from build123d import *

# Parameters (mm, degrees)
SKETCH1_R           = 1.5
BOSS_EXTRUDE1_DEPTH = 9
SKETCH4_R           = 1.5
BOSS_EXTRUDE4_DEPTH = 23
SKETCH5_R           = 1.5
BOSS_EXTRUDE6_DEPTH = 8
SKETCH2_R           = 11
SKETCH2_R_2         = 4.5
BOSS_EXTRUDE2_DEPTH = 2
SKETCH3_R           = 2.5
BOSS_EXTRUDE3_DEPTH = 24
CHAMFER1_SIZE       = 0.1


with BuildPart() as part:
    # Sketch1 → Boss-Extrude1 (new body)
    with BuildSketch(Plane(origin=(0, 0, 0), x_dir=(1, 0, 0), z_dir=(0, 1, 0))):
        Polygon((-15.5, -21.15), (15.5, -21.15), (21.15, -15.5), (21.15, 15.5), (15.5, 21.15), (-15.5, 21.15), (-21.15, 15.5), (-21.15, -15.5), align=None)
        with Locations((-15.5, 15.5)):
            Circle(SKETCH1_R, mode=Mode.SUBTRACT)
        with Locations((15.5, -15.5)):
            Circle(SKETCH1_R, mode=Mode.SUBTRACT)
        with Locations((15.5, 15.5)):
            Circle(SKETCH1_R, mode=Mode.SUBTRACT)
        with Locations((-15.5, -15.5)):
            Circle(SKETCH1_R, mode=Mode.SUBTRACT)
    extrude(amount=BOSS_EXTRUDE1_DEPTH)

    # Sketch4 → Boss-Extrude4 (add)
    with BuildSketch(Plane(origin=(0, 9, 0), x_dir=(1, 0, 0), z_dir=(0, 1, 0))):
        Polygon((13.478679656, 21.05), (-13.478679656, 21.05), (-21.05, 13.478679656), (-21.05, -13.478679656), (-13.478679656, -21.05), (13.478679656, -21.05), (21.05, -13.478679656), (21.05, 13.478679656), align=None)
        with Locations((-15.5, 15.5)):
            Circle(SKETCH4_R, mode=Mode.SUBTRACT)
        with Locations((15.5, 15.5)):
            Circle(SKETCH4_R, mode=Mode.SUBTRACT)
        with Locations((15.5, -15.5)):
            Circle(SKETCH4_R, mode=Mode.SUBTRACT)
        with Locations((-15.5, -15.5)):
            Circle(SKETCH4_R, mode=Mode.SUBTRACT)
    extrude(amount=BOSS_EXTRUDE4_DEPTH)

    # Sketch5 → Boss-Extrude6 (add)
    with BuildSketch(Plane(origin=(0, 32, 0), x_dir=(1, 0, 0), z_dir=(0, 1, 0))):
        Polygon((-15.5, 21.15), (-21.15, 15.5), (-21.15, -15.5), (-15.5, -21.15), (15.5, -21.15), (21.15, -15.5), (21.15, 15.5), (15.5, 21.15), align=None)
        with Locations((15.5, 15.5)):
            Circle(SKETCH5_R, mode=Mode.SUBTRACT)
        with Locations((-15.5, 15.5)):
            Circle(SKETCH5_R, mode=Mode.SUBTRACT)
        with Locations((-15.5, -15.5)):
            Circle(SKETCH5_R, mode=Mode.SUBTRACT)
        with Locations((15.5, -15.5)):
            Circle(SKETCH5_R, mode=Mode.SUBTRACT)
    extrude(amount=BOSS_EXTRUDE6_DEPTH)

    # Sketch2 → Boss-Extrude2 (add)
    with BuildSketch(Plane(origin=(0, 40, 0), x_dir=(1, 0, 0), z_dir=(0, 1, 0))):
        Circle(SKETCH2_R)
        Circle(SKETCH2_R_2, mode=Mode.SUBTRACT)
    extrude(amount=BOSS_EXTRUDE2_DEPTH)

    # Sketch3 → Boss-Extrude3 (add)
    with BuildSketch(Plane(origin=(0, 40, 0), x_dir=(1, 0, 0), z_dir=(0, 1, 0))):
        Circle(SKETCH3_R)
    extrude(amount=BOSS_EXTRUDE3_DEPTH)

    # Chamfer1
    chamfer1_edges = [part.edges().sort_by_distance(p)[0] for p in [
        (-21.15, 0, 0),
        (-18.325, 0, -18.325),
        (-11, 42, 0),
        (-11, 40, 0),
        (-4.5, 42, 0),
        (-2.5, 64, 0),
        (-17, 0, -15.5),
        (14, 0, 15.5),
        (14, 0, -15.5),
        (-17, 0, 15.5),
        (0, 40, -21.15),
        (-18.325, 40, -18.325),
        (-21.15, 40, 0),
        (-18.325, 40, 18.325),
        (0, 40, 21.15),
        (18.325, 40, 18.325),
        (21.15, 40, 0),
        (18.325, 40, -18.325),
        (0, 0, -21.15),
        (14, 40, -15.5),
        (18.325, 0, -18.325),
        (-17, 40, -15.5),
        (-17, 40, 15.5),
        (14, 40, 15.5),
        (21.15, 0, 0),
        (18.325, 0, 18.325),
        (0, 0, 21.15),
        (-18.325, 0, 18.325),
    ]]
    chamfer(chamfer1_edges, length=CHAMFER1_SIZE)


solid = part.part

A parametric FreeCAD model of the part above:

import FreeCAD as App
import Part
import Sketcher

V = App.Vector


def edges_at(feature, points):
    """Names of the edges that pass closest to the given points."""
    edges = feature.Shape.Edges
    near = lambda p: min(range(len(edges)), key=lambda i: edges[i].distToShape(Part.Vertex(*p))[0])
    return sorted({f"Edge{near(p) + 1}" for p in points})


def add_polygon(sketch, points):
    """Adds a closed chain of lines whose ends are joined by coincident constraints."""
    first, n = sketch.GeometryCount, len(points)
    for a, b in zip(points, points[1:] + points[:1]):
        sketch.addGeometry(Part.LineSegment(App.Vector(*a, 0), App.Vector(*b, 0)), False)
    for i in range(n):
        sketch.addConstraint(Sketcher.Constraint("Coincident", first + i, 2, first + (i + 1) % n, 1))

doc = App.newDocument("Part")
body = doc.addObject("PartDesign::Body", "Body")

sketch1 = body.newObject("Sketcher::SketchObject", "Sketch")
sketch1.AttachmentSupport = (doc.getObject("XZ_Plane"), [""])
sketch1.MapMode = "FlatFace"
add_polygon(sketch1, [(-15.5, 21.15), (15.5, 21.15), (21.15, 15.5), (21.15, -15.5), (15.5, -21.15), (-15.5, -21.15), (-21.15, -15.5), (-21.15, 15.5)])
sketch1.addGeometry(Part.Circle(V(-15.5, 15.5, 0), V(0, 0, 1), 1.5), False)
sketch1.addGeometry(Part.Circle(V(15.5, 15.5, 0), V(0, 0, 1), 1.5), False)
sketch1.addGeometry(Part.Circle(V(-15.5, -15.5, 0), V(0, 0, 1), 1.5), False)
sketch1.addGeometry(Part.Circle(V(15.5, -15.5, 0), V(0, 0, 1), 1.5), False)
sketch1.addConstraint([
    Sketcher.Constraint("Horizontal", 0),
    Sketcher.Constraint("Vertical", 2),
    Sketcher.Constraint("Horizontal", 4),
    Sketcher.Constraint("Vertical", 6),
    Sketcher.Constraint("Equal", 8, 9),
    Sketcher.Constraint("Equal", 9, 10),
    Sketcher.Constraint("Equal", 10, 11),
    Sketcher.Constraint("Symmetric", 9, 3, 10, 3, -1, 1),
    Sketcher.Constraint("Symmetric", 8, 3, 11, 3, -1, 1),
    Sketcher.Constraint("Symmetric", 0, 2, 4, 2, -1, 1),
    Sketcher.Constraint("Symmetric", 1, 2, 5, 2, -1, 1),
    Sketcher.Constraint("Symmetric", 8, 3, 9, 3, -2),
    Sketcher.Constraint("Perpendicular", 1, 3),
    Sketcher.Constraint("Perpendicular", 5, 7),
    Sketcher.Constraint("Horizontal", 9, 3, 1, 2),
    Sketcher.Constraint("Horizontal", 11, 3, 2, 2),
    Sketcher.Constraint("Horizontal", 1, 2, 6, 2),
    Sketcher.Constraint("Vertical", 11, 3, 0, 2),
    Sketcher.Constraint("Vertical", 0, 2, 3, 2),
    Sketcher.Constraint("Equal", 4, 2),
    Sketcher.Constraint("Diameter", 8, 3.0),
    Sketcher.Constraint("DistanceX", 0, 1, 0, 2, 31.0),
    Sketcher.Constraint("DistanceY", -1, 1, 0, 2, 21.15),
])
pad1 = body.newObject("PartDesign::Pad", "Pad")
pad1.Profile = sketch1
pad1.Length = 9
pad1.Reversed = True

sketch2 = body.newObject("Sketcher::SketchObject", "Sketch001")
sketch2.AttachmentSupport = (doc.getObject("XZ_Plane"), [""])
sketch2.MapMode = "FlatFace"
sketch2.AttachmentOffset = App.Placement(V(0, 0, -9), App.Rotation())
add_polygon(sketch2, [(13.47868, -21.05), (-13.47868, -21.05), (-21.05, -13.47868), (-21.05, 13.47868), (-13.47868, 21.05), (13.47868, 21.05), (21.05, 13.47868), (21.05, -13.47868)])
sketch2.addGeometry(Part.Circle(V(-15.5, 15.5, 0), V(0, 0, 1), 1.5), False)
sketch2.addGeometry(Part.Circle(V(15.5, 15.5, 0), V(0, 0, 1), 1.5), False)
sketch2.addGeometry(Part.Circle(V(-15.5, -15.5, 0), V(0, 0, 1), 1.5), False)
sketch2.addGeometry(Part.Circle(V(15.5, -15.5, 0), V(0, 0, 1), 1.5), False)
sketch2.addConstraint([
    Sketcher.Constraint("Horizontal", 0),
    Sketcher.Constraint("Vertical", 2),
    Sketcher.Constraint("Horizontal", 4),
    Sketcher.Constraint("Vertical", 6),
    Sketcher.Constraint("Equal", 8, 9),
    Sketcher.Constraint("Equal", 9, 10),
    Sketcher.Constraint("Equal", 10, 11),
    Sketcher.Constraint("Symmetric", 9, 3, 10, 3, -1, 1),
    Sketcher.Constraint("Symmetric", 8, 3, 11, 3, -1, 1),
    Sketcher.Constraint("Symmetric", 0, 2, 4, 2, -1, 1),
    Sketcher.Constraint("Symmetric", 1, 2, 5, 2, -1, 1),
    Sketcher.Constraint("Symmetric", 8, 3, 9, 3, -2),
    Sketcher.Constraint("Perpendicular", 1, 3),
    Sketcher.Constraint("Perpendicular", 5, 7),
    Sketcher.Constraint("Horizontal", 2, 2, 5, 2),
    Sketcher.Constraint("Horizontal", 1, 2, 6, 2),
    Sketcher.Constraint("Vertical", 0, 2, 3, 2),
    Sketcher.Constraint("Equal", 4, 2),
    Sketcher.Constraint("Diameter", 8, 3.0),
    Sketcher.Constraint("DistanceX", 8, 3, 9, 3, 31.0),
    Sketcher.Constraint("DistanceY", 10, 3, 8, 3, 31.0),
    Sketcher.Constraint("DistanceY", 0, 2, -1, 1, 21.05),
    Sketcher.Constraint("DistanceX", 0, 2, 0, 1, 26.957359),
])
pad2 = body.newObject("PartDesign::Pad", "Pad001")
pad2.Profile = sketch2
pad2.Length = 23
pad2.Reversed = True

sketch3 = body.newObject("Sketcher::SketchObject", "Sketch002")
sketch3.AttachmentSupport = (doc.getObject("XZ_Plane"), [""])
sketch3.MapMode = "FlatFace"
sketch3.AttachmentOffset = App.Placement(V(0, 0, -32), App.Rotation())
add_polygon(sketch3, [(-15.5, -21.15), (-21.15, -15.5), (-21.15, 15.5), (-15.5, 21.15), (15.5, 21.15), (21.15, 15.5), (21.15, -15.5), (15.5, -21.15)])
sketch3.addGeometry(Part.Circle(V(-15.5, 15.5, 0), V(0, 0, 1), 1.5), False)
sketch3.addGeometry(Part.Circle(V(15.5, 15.5, 0), V(0, 0, 1), 1.5), False)
sketch3.addGeometry(Part.Circle(V(-15.5, -15.5, 0), V(0, 0, 1), 1.5), False)
sketch3.addGeometry(Part.Circle(V(15.5, -15.5, 0), V(0, 0, 1), 1.5), False)
sketch3.addConstraint([
    Sketcher.Constraint("Vertical", 1),
    Sketcher.Constraint("Horizontal", 3),
    Sketcher.Constraint("Vertical", 5),
    Sketcher.Constraint("Horizontal", 7),
    Sketcher.Constraint("Equal", 8, 9),
    Sketcher.Constraint("Equal", 9, 10),
    Sketcher.Constraint("Equal", 10, 11),
    Sketcher.Constraint("Symmetric", 9, 3, 10, 3, -1, 1),
    Sketcher.Constraint("Symmetric", 8, 3, 11, 3, -1, 1),
    Sketcher.Constraint("Symmetric", 0, 2, 4, 2, -1, 1),
    Sketcher.Constraint("Symmetric", 2, 2, 6, 2, -1, 1),
    Sketcher.Constraint("Symmetric", 8, 3, 9, 3, -2),
    Sketcher.Constraint("Perpendicular", 0, 2),
    Sketcher.Constraint("Perpendicular", 2, 4),
    Sketcher.Constraint("Perpendicular", 4, 6),
    Sketcher.Constraint("Horizontal", 11, 3, 0, 2),
    Sketcher.Constraint("Horizontal", 9, 3, 1, 2),
    Sketcher.Constraint("Vertical", 10, 3, 2, 2),
    Sketcher.Constraint("Vertical", 11, 3, 3, 2),
    Sketcher.Constraint("Equal", 7, 1),
    Sketcher.Constraint("Diameter", 8, 3.0),
    Sketcher.Constraint("DistanceX", 3, 1, 3, 2, 31.0),
    Sketcher.Constraint("DistanceX", 0, 2, -1, 1, 21.15),
])
pad3 = body.newObject("PartDesign::Pad", "Pad002")
pad3.Profile = sketch3
pad3.Length = 8
pad3.Reversed = True

sketch4 = body.newObject("Sketcher::SketchObject", "Sketch003")
sketch4.AttachmentSupport = (doc.getObject("XZ_Plane"), [""])
sketch4.MapMode = "FlatFace"
sketch4.AttachmentOffset = App.Placement(V(0, 0, -40), App.Rotation())
sketch4.addGeometry([
    Part.Circle(V(0, 0, 0), V(0, 0, 1), 11),
    Part.Circle(V(0, 0, 0), V(0, 0, 1), 4.5),
], False)
sketch4.addConstraint([
    Sketcher.Constraint("Coincident", 0, 3, -1, 1),
    Sketcher.Constraint("Coincident", 1, 3, -1, 1),
    Sketcher.Constraint("Diameter", 0, 22.0),
    Sketcher.Constraint("Diameter", 1, 9.0),
])
pad4 = body.newObject("PartDesign::Pad", "Pad003")
pad4.Profile = sketch4
pad4.Length = 2
pad4.Reversed = True

sketch5 = body.newObject("Sketcher::SketchObject", "Sketch004")
sketch5.AttachmentSupport = (doc.getObject("XZ_Plane"), [""])
sketch5.MapMode = "FlatFace"
sketch5.AttachmentOffset = App.Placement(V(0, 0, -40), App.Rotation())
sketch5.addGeometry(Part.Circle(V(0, 0, 0), V(0, 0, 1), 2.5), False)
sketch5.addConstraint([
    Sketcher.Constraint("Coincident", 0, 3, -1, 1),
    Sketcher.Constraint("Diameter", 0, 5.0),
])
pad5 = body.newObject("PartDesign::Pad", "Pad004")
pad5.Profile = sketch5
pad5.Length = 24
pad5.Reversed = True
doc.recompute()

chamfer = body.newObject("PartDesign::Chamfer", "Chamfer")
chamfer.Base = (pad5, edges_at(pad5, [
    (-21.15, 0, 0),
    (-18.325, 0, -18.325),
    (-11, 42, 0),
    (-11, 40, 0),
    (-4.5, 42, 0),
    (-2.5, 64, 0),
    (-17, 0, -15.5),
    (14, 0, 15.5),
    (14, 0, -15.5),
    (-17, 0, 15.5),
    (0, 40, -21.15),
    (-18.325, 40, -18.325),
    (-21.15, 40, 0),
    (-18.325, 40, 18.325),
    (0, 40, 21.15),
    (18.325, 40, 18.325),
    (21.15, 40, 0),
    (18.325, 40, -18.325),
    (0, 0, -21.15),
    (14, 40, -15.5),
    (18.325, 0, -18.325),
    (-17, 40, -15.5),
    (-17, 40, 15.5),
    (14, 40, 15.5),
    (21.15, 0, 0),
    (18.325, 0, 18.325),
    (0, 0, 21.15),
    (-18.325, 0, 18.325),
]))
chamfer.Size = 0.1

doc.recompute()
